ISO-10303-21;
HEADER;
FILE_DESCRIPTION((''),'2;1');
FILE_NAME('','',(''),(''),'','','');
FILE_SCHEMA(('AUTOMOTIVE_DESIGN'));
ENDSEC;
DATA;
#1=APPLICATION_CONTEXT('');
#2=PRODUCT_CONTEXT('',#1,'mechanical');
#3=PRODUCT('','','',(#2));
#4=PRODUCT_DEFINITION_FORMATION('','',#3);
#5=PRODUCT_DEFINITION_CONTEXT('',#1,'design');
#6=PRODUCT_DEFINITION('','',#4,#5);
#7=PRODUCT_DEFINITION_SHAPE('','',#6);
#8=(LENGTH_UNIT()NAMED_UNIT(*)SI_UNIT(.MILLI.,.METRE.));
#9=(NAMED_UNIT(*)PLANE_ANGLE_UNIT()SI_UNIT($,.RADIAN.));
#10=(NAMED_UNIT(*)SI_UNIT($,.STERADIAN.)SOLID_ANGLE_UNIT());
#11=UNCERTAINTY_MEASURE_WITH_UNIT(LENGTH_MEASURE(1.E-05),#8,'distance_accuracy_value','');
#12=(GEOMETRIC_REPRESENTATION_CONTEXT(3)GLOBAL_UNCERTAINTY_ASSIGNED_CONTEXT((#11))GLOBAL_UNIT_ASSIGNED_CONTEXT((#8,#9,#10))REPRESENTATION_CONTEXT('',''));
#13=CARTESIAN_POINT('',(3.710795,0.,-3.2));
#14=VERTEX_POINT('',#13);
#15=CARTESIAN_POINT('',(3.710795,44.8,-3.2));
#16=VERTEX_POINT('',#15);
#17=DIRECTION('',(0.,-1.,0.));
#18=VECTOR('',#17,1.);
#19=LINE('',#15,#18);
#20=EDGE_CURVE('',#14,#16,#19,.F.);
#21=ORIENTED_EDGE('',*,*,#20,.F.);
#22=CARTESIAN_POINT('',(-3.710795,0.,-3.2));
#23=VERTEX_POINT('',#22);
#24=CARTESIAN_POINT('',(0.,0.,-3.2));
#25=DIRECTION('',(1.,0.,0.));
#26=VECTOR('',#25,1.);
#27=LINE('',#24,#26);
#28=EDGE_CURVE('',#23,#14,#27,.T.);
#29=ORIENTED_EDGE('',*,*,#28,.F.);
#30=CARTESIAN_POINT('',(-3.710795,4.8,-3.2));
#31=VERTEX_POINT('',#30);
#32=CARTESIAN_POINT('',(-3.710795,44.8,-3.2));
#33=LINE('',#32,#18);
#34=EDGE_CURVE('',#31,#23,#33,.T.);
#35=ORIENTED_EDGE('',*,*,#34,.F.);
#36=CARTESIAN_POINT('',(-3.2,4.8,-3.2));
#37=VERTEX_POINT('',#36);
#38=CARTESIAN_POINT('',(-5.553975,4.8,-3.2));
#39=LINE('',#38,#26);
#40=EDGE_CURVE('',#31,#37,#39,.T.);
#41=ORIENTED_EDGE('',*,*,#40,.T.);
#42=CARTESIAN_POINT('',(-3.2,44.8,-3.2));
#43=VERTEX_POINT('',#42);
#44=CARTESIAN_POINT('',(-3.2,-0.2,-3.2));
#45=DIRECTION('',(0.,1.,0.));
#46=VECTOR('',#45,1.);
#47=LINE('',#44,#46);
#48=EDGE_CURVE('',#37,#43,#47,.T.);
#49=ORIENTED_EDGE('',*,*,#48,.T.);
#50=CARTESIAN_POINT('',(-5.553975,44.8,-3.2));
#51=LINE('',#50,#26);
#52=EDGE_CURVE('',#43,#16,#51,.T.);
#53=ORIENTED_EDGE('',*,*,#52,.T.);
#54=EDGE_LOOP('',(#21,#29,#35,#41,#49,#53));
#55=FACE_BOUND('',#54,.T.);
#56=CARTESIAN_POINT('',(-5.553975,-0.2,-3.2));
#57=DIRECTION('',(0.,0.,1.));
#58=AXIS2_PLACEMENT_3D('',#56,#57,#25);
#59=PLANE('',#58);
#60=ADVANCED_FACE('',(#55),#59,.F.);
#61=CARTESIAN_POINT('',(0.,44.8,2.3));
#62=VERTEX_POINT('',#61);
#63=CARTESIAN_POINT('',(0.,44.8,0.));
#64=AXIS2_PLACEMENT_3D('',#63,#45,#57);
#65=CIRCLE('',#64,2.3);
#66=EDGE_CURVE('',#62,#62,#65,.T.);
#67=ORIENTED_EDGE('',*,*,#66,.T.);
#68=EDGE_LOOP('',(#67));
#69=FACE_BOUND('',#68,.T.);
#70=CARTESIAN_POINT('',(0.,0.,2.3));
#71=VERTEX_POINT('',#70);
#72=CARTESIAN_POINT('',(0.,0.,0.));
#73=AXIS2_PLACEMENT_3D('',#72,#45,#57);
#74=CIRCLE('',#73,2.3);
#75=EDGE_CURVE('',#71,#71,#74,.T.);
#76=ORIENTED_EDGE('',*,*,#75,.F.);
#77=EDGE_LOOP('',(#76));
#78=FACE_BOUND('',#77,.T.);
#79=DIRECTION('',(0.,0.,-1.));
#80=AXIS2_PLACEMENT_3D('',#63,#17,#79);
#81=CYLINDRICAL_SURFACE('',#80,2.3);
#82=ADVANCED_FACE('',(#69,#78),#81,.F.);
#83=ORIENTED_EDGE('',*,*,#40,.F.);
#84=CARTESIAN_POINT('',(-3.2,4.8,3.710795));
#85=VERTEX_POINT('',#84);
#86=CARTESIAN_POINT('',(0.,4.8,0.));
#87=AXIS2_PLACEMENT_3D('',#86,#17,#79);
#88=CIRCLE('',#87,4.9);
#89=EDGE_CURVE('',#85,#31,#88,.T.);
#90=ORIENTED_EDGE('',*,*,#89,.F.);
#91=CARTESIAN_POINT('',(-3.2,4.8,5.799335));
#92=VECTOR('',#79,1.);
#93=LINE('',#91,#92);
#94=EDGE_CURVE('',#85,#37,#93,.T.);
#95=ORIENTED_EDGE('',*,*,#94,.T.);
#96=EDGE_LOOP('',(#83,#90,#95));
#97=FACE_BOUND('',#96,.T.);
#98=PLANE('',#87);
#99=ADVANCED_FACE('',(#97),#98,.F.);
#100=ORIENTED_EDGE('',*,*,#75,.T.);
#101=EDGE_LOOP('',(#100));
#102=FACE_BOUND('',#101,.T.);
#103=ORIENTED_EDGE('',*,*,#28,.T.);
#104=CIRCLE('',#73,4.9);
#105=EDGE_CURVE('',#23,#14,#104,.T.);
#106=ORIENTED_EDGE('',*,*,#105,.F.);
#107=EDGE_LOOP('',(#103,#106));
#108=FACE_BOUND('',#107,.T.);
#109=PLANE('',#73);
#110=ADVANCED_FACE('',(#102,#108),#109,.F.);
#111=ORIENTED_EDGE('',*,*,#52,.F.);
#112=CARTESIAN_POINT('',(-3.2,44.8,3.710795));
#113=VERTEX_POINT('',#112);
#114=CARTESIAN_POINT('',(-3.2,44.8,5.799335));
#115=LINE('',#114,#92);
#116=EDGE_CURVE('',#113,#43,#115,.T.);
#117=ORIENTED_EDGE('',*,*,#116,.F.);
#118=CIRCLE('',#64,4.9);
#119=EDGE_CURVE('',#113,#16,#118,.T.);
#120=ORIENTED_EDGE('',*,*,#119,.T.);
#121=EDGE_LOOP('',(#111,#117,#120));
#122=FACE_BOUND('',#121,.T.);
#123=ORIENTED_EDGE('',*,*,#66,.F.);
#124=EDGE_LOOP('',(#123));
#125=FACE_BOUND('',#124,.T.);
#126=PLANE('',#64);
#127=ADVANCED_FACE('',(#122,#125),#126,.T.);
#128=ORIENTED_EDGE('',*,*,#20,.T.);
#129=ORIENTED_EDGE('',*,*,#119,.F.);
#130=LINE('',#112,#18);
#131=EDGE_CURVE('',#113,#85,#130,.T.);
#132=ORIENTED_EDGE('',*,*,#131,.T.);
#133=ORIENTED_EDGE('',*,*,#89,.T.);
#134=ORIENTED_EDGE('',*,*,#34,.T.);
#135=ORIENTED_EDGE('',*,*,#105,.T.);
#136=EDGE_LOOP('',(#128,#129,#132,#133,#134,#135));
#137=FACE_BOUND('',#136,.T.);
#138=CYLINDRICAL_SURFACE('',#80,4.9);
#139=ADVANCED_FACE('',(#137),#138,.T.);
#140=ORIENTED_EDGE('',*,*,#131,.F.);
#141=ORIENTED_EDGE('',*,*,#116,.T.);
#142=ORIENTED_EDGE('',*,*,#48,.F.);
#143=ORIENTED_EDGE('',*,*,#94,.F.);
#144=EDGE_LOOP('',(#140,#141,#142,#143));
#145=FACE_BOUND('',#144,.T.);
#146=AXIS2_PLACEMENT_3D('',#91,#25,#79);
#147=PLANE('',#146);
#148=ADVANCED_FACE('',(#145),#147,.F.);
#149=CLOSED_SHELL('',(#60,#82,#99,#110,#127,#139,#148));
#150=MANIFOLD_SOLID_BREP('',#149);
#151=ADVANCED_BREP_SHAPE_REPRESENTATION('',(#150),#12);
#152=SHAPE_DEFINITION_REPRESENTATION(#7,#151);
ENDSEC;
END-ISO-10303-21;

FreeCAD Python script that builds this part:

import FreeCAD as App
import Part
import Sketcher

V = App.Vector


def add_polygon(sketch, points):
    """Adds a closed chain of lines whose ends are joined by coincident constraints."""
    first, n = sketch.GeometryCount, len(points)
    for a, b in zip(points, points[1:] + points[:1]):
        sketch.addGeometry(Part.LineSegment(App.Vector(*a, 0), App.Vector(*b, 0)), False)
    for i in range(n):
        sketch.addConstraint(Sketcher.Constraint("Coincident", first + i, 2, first + (i + 1) % n, 1))

doc = App.newDocument("Part")
body = doc.addObject("PartDesign::Body", "Body")

sketch1 = body.newObject("Sketcher::SketchObject", "Sketch")
sketch1.AttachmentSupport = (doc.getObject("XZ_Plane"), [""])
sketch1.MapMode = "FlatFace"
sketch1.addGeometry([
    Part.Circle(V(0, 0, 0), V(0, 0, 1), 4.9),
    Part.Circle(V(0, 0, 0), V(0, 0, 1), 2.3),
], False)
sketch1.addConstraint([
    Sketcher.Constraint("Coincident", 0, 3, -1, 1),
    Sketcher.Constraint("Coincident", 1, 3, -1, 1),
    Sketcher.Constraint("Diameter", 0, 9.8),
    Sketcher.Constraint("Diameter", 1, 4.6),
])
pad1 = body.newObject("PartDesign::Pad", "Pad")
pad1.Profile = sketch1
pad1.Length = 44.8
pad1.Reversed = True

sketch2 = body.newObject("Sketcher::SketchObject", "Sketch001")
sketch2.AttachmentSupport = (doc.getObject("XZ_Plane"), [""])
sketch2.MapMode = "FlatFace"
sketch2.AttachmentOffset = App.Placement(V(0, 0, -44.8), App.Rotation())
add_polygon(sketch2, [(-5.6, -6.1), (-5.6, -3.2), (7.4, -3.2), (7.4, -6.1)])
sketch2.addConstraint([
    Sketcher.Constraint("Vertical", 0),
    Sketcher.Constraint("Horizontal", 1),
    Sketcher.Constraint("Vertical", 2),
    Sketcher.Constraint("Horizontal", 3),
    Sketcher.Constraint("DistanceY", 0, 2, -1, 1, 3.2),
    Sketcher.Constraint("DistanceX", 1, 1, 1, 2, 12.911729),
    Sketcher.Constraint("DistanceY", 0, 1, 0, 2, 2.871422),
    Sketcher.Constraint("DistanceX", 0, 2, -1, 1, 5.553975),
])
pocket1 = body.newObject("PartDesign::Pocket", "Pocket")
pocket1.Profile = sketch2
pocket1.Length = 45
pocket1.Reversed = True

sketch3 = body.newObject("Sketcher::SketchObject", "Sketch002")
sketch3.AttachmentSupport = (doc.getObject("XZ_Plane"), [""])
sketch3.MapMode = "FlatFace"
sketch3.AttachmentOffset = App.Placement(V(0, 0, -44.8), App.Rotation())
add_polygon(sketch3, [(-21, -14), (-21, 6), (-3, 6), (-3, -14)])
sketch3.addConstraint([
    Sketcher.Constraint("Vertical", 0),
    Sketcher.Constraint("Horizontal", 1),
    Sketcher.Constraint("Vertical", 2),
    Sketcher.Constraint("Horizontal", 3),
    Sketcher.Constraint("DistanceY", 0, 1, 0, 2, 20.0),
    Sketcher.Constraint("DistanceX", 1, 2, -1, 1, 3.2),
    Sketcher.Constraint("DistanceX", 1, 1, 1, 2, 17.671202),
    Sketcher.Constraint("DistanceY", -1, 1, 0, 2, 5.799335),
])
pocket2 = body.newObject("PartDesign::Pocket", "Pocket001")
pocket2.Profile = sketch3
pocket2.Length = 40
pocket2.Reversed = True

doc.recompute()
